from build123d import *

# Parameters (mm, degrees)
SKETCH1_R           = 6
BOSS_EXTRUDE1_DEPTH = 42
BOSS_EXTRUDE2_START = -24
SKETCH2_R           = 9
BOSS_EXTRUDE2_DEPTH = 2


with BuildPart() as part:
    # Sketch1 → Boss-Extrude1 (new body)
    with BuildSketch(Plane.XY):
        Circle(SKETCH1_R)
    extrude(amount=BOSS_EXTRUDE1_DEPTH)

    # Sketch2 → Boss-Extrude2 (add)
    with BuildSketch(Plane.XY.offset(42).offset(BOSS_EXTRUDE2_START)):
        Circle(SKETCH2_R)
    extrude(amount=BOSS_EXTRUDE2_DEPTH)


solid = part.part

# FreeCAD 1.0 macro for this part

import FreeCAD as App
import Part
import Sketcher

V = App.Vector

doc = App.newDocument("Part")
body = doc.addObject("PartDesign::Body", "Body")

sketch1 = body.newObject("Sketcher::SketchObject", "Sketch")
sketch1.AttachmentSupport = (doc.getObject("XY_Plane"), [""])
sketch1.MapMode = "FlatFace"
sketch1.addGeometry(Part.Circle(V(0, 0, 0), V(0, 0, 1), 6), False)
sketch1.addConstraint(Sketcher.Constraint("Coincident", 0, 3, -1, 1))
sketch1.addConstraint(Sketcher.Constraint("Diameter", 0, 12.0))
pad1 = body.newObject("PartDesign::Pad", "Pad")
pad1.Profile = sketch1
pad1.Length = 42

sketch2 = body.newObject("Sketcher::SketchObject", "Sketch001")
sketch2.AttachmentSupport = (doc.getObject("XY_Plane"), [""])
sketch2.MapMode = "FlatFace"
sketch2.AttachmentOffset = App.Placement(V(0, 0, 18), App.Rotation())
sketch2.addGeometry(Part.Circle(V(0, 0, 0), V(0, 0, 1), 9), False)
sketch2.addConstraint(Sketcher.Constraint("Coincident", 0, 3, -1, 1))
sketch2.addConstraint(Sketcher.Constraint("Diameter", 0, 18.0))
pad2 = body.newObject("PartDesign::Pad", "Pad001")
pad2.Profile = sketch2
pad2.Length = 2

doc.recompute()
